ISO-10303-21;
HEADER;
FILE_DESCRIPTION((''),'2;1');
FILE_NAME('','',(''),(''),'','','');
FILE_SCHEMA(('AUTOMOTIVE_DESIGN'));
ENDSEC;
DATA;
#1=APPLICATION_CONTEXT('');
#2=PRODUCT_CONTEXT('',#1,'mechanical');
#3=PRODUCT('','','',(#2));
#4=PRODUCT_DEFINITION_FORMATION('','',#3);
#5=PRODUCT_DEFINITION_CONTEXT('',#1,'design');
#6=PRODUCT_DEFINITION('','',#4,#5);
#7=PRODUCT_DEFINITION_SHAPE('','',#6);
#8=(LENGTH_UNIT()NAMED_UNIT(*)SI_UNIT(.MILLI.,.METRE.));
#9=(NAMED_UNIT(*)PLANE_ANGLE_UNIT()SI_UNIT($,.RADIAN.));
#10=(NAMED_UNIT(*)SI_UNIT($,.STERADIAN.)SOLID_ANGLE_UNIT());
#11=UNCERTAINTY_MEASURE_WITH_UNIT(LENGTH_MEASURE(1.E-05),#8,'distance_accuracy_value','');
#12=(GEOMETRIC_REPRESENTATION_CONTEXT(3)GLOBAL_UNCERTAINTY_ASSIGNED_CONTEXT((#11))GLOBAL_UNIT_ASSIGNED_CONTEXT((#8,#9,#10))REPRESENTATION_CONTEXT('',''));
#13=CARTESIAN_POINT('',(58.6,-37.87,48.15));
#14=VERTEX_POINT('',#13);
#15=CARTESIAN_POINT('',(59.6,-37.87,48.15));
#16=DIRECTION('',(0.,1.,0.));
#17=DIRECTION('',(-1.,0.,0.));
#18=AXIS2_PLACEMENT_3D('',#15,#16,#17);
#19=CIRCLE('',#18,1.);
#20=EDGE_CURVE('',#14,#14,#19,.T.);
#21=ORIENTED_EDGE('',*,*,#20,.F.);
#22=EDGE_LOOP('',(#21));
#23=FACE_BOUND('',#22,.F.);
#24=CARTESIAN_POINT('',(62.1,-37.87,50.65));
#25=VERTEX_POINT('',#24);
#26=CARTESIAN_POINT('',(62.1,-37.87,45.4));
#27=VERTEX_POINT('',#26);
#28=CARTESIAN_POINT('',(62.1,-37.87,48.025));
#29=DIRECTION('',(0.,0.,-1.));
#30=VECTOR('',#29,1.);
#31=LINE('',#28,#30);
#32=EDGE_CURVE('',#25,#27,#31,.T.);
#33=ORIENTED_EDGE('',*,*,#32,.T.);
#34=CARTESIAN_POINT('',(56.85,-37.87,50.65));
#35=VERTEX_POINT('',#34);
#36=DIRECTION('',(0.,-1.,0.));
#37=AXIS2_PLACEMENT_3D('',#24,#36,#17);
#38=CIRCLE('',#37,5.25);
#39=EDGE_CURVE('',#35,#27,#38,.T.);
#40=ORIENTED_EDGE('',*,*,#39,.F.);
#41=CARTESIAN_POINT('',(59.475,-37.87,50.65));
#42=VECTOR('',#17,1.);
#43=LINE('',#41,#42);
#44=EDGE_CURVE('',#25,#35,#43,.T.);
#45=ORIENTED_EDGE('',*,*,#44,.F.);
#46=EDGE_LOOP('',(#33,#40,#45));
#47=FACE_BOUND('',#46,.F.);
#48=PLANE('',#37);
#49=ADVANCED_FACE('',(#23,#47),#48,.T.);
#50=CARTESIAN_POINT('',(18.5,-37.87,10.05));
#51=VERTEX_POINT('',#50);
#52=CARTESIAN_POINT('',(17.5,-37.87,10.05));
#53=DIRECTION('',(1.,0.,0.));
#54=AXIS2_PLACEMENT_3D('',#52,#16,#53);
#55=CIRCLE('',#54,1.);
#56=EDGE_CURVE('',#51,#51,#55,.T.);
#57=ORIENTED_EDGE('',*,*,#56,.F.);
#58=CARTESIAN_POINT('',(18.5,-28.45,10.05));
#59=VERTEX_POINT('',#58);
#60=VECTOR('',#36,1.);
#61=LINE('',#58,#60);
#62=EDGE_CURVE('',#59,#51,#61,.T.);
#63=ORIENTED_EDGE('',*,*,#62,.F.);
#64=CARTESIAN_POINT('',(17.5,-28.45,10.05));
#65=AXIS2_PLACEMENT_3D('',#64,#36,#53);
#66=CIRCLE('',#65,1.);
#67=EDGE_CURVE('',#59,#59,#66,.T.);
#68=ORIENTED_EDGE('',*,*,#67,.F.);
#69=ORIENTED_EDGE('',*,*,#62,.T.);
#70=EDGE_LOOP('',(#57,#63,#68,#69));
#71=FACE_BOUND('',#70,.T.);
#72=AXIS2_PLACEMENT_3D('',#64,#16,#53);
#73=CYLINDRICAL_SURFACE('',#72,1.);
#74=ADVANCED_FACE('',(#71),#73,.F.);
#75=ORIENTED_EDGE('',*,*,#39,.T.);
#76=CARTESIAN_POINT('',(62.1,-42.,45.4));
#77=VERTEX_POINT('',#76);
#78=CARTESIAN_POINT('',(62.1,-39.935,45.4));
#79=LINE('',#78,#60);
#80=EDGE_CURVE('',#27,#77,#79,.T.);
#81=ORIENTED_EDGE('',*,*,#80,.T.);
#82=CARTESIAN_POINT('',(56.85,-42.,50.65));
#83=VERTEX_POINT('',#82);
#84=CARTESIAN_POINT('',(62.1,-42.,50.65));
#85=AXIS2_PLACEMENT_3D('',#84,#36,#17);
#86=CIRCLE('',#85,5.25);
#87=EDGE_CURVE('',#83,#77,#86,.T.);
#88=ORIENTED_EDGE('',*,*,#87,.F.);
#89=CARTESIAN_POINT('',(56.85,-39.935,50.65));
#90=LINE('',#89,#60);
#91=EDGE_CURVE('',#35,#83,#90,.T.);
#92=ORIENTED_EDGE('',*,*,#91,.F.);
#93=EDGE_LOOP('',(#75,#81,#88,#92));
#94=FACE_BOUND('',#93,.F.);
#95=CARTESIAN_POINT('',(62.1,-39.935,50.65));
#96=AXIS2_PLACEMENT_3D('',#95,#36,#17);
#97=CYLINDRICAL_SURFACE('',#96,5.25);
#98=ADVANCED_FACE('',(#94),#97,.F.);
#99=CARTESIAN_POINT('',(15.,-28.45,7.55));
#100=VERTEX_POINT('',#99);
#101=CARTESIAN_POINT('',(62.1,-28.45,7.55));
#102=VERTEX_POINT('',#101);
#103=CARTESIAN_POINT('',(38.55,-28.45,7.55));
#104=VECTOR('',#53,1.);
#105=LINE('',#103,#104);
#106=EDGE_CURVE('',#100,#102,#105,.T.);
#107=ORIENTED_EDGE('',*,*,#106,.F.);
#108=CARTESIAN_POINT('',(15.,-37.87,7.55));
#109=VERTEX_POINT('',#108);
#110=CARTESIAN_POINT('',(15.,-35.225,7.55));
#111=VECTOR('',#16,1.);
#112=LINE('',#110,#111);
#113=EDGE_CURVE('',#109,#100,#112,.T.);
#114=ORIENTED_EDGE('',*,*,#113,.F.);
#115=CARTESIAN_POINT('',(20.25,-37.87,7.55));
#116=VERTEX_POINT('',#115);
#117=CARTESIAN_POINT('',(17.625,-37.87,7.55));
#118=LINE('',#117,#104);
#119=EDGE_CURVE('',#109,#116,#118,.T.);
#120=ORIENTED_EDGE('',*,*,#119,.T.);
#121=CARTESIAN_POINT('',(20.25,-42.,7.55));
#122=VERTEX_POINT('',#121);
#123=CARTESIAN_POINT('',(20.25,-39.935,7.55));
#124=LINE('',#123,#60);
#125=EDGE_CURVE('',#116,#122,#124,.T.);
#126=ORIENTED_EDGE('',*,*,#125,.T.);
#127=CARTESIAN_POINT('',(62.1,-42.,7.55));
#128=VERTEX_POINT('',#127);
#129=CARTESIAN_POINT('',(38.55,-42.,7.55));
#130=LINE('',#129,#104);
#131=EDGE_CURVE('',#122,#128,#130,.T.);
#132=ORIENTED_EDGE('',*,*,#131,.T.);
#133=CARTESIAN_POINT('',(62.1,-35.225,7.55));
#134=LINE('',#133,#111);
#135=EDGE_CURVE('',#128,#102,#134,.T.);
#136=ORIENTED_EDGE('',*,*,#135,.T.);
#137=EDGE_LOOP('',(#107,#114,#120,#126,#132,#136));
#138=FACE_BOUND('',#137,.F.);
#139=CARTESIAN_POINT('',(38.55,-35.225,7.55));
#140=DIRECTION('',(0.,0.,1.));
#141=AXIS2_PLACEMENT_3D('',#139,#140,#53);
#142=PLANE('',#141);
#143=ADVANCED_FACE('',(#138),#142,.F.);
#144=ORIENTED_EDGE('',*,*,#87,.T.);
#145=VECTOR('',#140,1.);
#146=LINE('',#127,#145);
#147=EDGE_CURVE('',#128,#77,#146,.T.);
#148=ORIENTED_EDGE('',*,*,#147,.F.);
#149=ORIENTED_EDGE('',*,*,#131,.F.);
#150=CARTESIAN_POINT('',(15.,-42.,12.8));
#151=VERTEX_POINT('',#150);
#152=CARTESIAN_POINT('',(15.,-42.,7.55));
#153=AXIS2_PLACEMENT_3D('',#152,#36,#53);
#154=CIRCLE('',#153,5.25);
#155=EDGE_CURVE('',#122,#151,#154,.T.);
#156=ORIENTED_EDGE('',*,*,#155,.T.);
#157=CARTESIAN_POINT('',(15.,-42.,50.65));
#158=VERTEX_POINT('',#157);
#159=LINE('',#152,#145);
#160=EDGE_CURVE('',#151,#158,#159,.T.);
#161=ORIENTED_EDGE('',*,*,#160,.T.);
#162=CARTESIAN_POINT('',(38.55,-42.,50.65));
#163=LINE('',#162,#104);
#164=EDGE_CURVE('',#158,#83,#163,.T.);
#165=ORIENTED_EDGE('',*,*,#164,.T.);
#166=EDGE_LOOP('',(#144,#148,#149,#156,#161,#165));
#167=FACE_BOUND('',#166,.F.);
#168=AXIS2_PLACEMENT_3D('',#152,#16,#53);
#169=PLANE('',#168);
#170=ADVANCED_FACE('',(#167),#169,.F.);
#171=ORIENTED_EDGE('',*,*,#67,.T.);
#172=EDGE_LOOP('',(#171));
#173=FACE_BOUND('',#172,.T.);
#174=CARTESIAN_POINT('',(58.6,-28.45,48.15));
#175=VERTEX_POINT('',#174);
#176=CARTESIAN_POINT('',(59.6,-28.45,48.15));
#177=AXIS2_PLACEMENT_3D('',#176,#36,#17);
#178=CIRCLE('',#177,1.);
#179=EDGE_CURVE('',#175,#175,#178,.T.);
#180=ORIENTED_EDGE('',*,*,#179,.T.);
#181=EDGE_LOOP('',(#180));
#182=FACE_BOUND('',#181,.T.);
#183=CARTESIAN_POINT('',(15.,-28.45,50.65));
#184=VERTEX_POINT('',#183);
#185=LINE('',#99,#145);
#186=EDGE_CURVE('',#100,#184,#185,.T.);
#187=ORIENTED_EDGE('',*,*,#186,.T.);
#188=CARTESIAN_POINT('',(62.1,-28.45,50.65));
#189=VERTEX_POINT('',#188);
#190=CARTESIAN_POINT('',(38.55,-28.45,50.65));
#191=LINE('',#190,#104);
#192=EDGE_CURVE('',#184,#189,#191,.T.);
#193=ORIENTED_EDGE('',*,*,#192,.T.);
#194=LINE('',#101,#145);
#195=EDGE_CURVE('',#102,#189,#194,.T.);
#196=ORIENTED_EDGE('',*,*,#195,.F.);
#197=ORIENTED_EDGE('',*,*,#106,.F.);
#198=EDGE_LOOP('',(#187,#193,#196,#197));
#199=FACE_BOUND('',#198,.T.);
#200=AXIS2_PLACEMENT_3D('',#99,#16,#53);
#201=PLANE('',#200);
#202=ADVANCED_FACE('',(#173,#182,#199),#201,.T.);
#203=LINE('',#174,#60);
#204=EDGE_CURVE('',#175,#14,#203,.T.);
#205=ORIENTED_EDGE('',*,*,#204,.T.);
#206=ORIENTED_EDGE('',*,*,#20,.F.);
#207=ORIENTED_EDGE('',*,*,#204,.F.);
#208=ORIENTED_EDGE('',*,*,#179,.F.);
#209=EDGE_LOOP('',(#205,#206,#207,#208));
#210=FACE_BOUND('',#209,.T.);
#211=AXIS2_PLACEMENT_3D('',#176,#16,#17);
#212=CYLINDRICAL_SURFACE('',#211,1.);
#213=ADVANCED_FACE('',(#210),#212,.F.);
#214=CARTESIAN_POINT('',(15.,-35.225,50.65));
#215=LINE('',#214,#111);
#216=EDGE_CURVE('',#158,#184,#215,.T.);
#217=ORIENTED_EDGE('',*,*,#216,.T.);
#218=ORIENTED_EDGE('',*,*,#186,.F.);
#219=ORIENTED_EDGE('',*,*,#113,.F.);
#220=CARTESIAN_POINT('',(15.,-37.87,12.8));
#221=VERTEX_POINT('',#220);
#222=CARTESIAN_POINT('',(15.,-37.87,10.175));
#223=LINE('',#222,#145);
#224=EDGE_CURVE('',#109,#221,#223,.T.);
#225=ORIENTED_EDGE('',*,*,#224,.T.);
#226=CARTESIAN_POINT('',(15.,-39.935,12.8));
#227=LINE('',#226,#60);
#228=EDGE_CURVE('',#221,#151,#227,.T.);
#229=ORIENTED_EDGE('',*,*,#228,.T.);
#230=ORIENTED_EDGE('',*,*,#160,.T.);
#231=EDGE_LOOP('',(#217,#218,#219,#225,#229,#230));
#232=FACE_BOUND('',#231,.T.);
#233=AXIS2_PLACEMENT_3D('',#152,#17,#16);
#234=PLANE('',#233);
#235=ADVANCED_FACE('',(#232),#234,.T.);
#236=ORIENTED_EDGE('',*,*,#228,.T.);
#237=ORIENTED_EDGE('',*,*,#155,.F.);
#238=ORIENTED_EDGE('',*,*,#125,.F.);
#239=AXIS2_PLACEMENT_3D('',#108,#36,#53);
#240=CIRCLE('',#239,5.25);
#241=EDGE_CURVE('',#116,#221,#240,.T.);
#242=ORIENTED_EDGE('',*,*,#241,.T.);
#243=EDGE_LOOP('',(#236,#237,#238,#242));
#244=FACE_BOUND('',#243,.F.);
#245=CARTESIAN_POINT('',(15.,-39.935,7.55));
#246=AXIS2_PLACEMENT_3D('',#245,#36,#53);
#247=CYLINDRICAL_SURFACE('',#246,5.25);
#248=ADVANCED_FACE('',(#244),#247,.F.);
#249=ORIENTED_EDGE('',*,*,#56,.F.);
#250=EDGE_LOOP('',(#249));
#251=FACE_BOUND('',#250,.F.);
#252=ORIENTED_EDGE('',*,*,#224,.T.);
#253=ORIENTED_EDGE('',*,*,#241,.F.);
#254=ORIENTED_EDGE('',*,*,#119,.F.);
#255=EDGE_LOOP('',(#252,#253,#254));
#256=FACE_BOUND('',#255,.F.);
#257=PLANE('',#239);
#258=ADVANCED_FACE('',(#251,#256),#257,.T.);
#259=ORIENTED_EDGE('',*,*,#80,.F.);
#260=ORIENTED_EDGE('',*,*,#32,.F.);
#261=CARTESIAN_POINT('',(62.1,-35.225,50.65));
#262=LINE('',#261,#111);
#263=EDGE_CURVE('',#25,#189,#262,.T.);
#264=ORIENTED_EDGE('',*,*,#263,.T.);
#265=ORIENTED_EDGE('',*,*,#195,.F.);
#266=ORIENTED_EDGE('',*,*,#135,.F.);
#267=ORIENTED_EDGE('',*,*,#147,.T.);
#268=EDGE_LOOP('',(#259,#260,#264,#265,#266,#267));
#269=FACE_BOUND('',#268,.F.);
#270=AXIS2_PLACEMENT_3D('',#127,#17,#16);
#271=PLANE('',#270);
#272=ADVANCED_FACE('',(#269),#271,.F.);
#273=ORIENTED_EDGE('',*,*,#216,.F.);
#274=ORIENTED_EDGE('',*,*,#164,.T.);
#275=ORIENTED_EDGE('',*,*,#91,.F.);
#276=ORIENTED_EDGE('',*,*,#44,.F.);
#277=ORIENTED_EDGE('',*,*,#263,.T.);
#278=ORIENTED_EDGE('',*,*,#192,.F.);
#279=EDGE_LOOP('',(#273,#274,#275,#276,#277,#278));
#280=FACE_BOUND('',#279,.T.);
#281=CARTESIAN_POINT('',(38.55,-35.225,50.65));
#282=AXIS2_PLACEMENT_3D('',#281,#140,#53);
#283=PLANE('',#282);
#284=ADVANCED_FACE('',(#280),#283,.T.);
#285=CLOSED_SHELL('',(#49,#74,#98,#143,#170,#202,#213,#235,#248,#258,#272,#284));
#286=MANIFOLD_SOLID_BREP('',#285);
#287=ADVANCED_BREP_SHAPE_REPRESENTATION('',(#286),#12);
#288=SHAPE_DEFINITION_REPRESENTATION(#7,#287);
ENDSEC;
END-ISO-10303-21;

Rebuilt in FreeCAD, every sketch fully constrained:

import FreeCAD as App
import Part
import Sketcher
from FreeCAD import Vector


def add_polygon(sketch, points):
    """Adds a closed chain of lines whose ends are joined by coincident constraints."""
    first, n = sketch.GeometryCount, len(points)
    for a, b in zip(points, points[1:] + points[:1]):
        sketch.addGeometry(Part.LineSegment(App.Vector(*a, 0), App.Vector(*b, 0)), False)
    for i in range(n):
        sketch.addConstraint(Sketcher.Constraint("Coincident", first + i, 2, first + (i + 1) % n, 1))

doc = App.newDocument("Part")
body = doc.addObject("PartDesign::Body", "Body")

# Sketch on XY plane
sketch1 = doc.addObject("Sketcher::SketchObject", "Sketch")
body.addObject(sketch1)
sketch1.AttachmentSupport = (doc.XY_Plane, [""])
sketch1.MapMode = "FlatFace"
add_polygon(sketch1, [(0, 0), (0, 4.13), (5.25, 4.13), (5.25, 0)])  # lines 0-3
sketch1.addConstraint([
    Sketcher.Constraint("Vertical", 0),
    Sketcher.Constraint("Horizontal", 1),
    Sketcher.Constraint("Vertical", 2),
    Sketcher.Constraint("Horizontal", 3),
    Sketcher.Constraint("Coincident", 3, 2, -1, 1),
    Sketcher.Constraint("DistanceX", 1, 1, 1, 2, 5.25),
    Sketcher.Constraint("DistanceY", 0, 1, 0, 2, 4.13),
])
revolution = doc.addObject("PartDesign::Revolution", "Revolution")
body.addObject(revolution)
revolution.Profile = sketch1
revolution.ReferenceAxis = (sketch1, ["V_Axis"])
revolution.Angle = 90
revolution.Reversed = True
body2 = doc.addObject("PartDesign::Body", "Body001")

# Sketch on XZ plane
sketch2 = doc.addObject("Sketcher::SketchObject", "Sketch001")
body2.addObject(sketch2)
sketch2.AttachmentSupport = (doc.getObject("XZ_Plane001"), [""])
sketch2.MapMode = "FlatFace"
sketch2.AttachmentOffset = App.Placement(Vector(0, 0, -13.55), App.Rotation())
sketch2.addGeometry(Part.Circle(Vector(2.5, 2.5, 0), Vector(0, 0, 1), 1), False)
sketch2.addConstraint([
    Sketcher.Constraint("Diameter", 0, 2.0),
    Sketcher.Constraint("DistanceX", -1, 1, 0, 3, 2.5),
    Sketcher.Constraint("DistanceY", -1, 1, 0, 3, 2.5),
])
pad1 = doc.addObject("PartDesign::Pad", "Pad")
body2.addObject(pad1)
pad1.Profile = sketch2
pad1.Length = 13.55
doc.recompute()

boolean = doc.addObject("PartDesign::Boolean", "Boolean")
body2.addObject(boolean)
boolean.Type = "Fuse"
boolean.addObjects([body])
body3 = doc.addObject("PartDesign::Body", "Body002")
doc.recompute()

body2.Placement = App.Placement(Vector(47.1, 0, 43.1), App.Rotation(Vector(0, 1, 0), 180))
boolean2 = doc.addObject("PartDesign::Boolean", "Boolean001")
body3.addObject(boolean2)
boolean2.Type = "Fuse"
boolean2.addObjects([body2])
body4 = doc.addObject("PartDesign::Body", "Body003")

# Sketch on XY plane
sketch3 = doc.addObject("Sketcher::SketchObject", "Sketch002")
body4.addObject(sketch3)
sketch3.AttachmentSupport = (doc.getObject("XY_Plane003"), [""])
sketch3.MapMode = "FlatFace"
add_polygon(sketch3, [(0, 0), (0, 4.13), (5.25, 4.13), (5.25, 0)])  # lines 0-3
sketch3.addConstraint([
    Sketcher.Constraint("Vertical", 0),
    Sketcher.Constraint("Horizontal", 1),
    Sketcher.Constraint("Vertical", 2),
    Sketcher.Constraint("Horizontal", 3),
    Sketcher.Constraint("Coincident", 3, 2, -1, 1),
    Sketcher.Constraint("DistanceX", 1, 1, 1, 2, 5.25),
    Sketcher.Constraint("DistanceY", 0, 1, 0, 2, 4.13),
])
revolution2 = doc.addObject("PartDesign::Revolution", "Revolution001")
body4.addObject(revolution2)
revolution2.Profile = sketch3
revolution2.ReferenceAxis = (sketch3, ["V_Axis"])
revolution2.Angle = 90
revolution2.Reversed = True
body5 = doc.addObject("PartDesign::Body", "Body004")
body5.AllowCompound = True

# Sketch on XZ plane
sketch4 = doc.addObject("Sketcher::SketchObject", "Sketch003")
body5.addObject(sketch4)
sketch4.AttachmentSupport = (doc.getObject("XZ_Plane004"), [""])
sketch4.MapMode = "FlatFace"
sketch4.AttachmentOffset = App.Placement(Vector(0, 0, -13.55), App.Rotation())
sketch4.addGeometry(Part.Circle(Vector(2.5, 2.5, 0), Vector(0, 0, 1), 1), False)
sketch4.addConstraint([
    Sketcher.Constraint("Diameter", 0, 2.0),
    Sketcher.Constraint("DistanceX", -1, 1, 0, 3, 2.5),
    Sketcher.Constraint("DistanceY", -1, 1, 0, 3, 2.5),
])
pad2 = doc.addObject("PartDesign::Pad", "Pad001")
body5.addObject(pad2)
pad2.Profile = sketch4
pad2.Length = 13.55
doc.recompute()

boolean3 = doc.addObject("PartDesign::Boolean", "Boolean002")
body5.addObject(boolean3)
boolean3.Type = "Fuse"
boolean3.addObjects([body4])
doc.recompute()

boolean4 = doc.addObject("PartDesign::Boolean", "Boolean003")
body5.addObject(boolean4)
boolean4.Type = "Fuse"
boolean4.addObjects([body3])
body6 = doc.addObject("PartDesign::Body", "Body005")

# Sketch on XY plane
sketch5 = doc.addObject("Sketcher::SketchObject", "Sketch004")
body6.addObject(sketch5)
sketch5.AttachmentSupport = (doc.getObject("XY_Plane005"), [""])
sketch5.MapMode = "FlatFace"
add_polygon(sketch5, [(0, 13.55), (0, 0), (47.1, 0), (47.1, 13.55)])  # lines 0-3
sketch5.addConstraint([
    Sketcher.Constraint("Vertical", 0),
    Sketcher.Constraint("Horizontal", 1),
    Sketcher.Constraint("Vertical", 2),
    Sketcher.Constraint("Horizontal", 3),
    Sketcher.Constraint("Coincident", 0, 2, -1, 1),
    Sketcher.Constraint("DistanceX", 1, 1, 1, 2, 47.1),
    Sketcher.Constraint("DistanceY", 0, 2, 0, 1, 13.55),
])
pad3 = doc.addObject("PartDesign::Pad", "Pad002")
body6.addObject(pad3)
pad3.Profile = sketch5
pad3.Length = 43.1
doc.recompute()

boolean5 = doc.addObject("PartDesign::Boolean", "Boolean004")
body6.addObject(boolean5)
boolean5.Type = "Cut"
boolean5.addObjects([body5])
body7 = doc.addObject("PartDesign::Body", "Body006")
doc.recompute()

body6.Placement = App.Placement(Vector(15, -42, 7.55), App.Rotation(Vector(0, 0, 1), 0))
boolean6 = doc.addObject("PartDesign::Boolean", "Boolean005")
body7.addObject(boolean6)
boolean6.Type = "Fuse"
boolean6.addObjects([body6])

doc.recompute()
